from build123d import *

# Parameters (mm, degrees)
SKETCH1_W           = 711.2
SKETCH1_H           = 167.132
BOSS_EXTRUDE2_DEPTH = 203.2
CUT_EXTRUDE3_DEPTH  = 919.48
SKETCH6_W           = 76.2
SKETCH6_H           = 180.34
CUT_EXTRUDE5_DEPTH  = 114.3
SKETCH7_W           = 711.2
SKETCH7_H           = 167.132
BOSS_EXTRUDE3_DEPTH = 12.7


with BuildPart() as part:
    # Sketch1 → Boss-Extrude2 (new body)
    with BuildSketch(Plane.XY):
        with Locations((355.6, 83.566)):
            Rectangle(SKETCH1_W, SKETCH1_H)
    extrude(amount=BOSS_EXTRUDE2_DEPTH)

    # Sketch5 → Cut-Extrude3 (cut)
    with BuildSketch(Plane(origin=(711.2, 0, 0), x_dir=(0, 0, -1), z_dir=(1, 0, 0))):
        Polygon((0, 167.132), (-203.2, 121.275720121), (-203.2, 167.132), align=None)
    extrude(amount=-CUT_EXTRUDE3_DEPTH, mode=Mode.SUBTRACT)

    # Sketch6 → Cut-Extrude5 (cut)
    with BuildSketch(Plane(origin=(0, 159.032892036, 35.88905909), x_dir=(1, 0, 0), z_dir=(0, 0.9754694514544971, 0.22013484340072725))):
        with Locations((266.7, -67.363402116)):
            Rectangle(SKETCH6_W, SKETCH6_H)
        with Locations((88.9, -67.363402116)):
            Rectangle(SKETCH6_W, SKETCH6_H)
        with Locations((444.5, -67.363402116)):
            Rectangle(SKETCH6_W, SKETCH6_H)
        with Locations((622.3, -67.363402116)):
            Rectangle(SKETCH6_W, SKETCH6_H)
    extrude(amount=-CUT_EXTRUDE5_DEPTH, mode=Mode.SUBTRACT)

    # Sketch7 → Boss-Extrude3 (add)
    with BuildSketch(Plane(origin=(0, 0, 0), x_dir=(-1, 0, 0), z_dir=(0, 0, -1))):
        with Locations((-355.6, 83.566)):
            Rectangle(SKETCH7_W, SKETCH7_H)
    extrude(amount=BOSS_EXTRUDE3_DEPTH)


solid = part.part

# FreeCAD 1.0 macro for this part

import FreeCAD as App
import Part
import Sketcher
Q = App.Units.Quantity


def add_polygon(sketch, points):
    """Adds a closed chain of lines whose ends are joined by coincident constraints."""
    first, n = sketch.GeometryCount, len(points)
    for a, b in zip(points, points[1:] + points[:1]):
        sketch.addGeometry(Part.LineSegment(App.Vector(*a, 0), App.Vector(*b, 0)), False)
    for i in range(n):
        sketch.addConstraint(Sketcher.Constraint("Coincident", first + i, 2, first + (i + 1) % n, 1))

doc = App.newDocument("Part")
body = doc.addObject("PartDesign::Body", "Body")

# Sketch on XY plane
sketch1 = body.newObject("Sketcher::SketchObject", "Sketch")
sketch1.AttachmentSupport = (doc.getObject("XY_Plane"), [""])
sketch1.MapMode = "FlatFace"
add_polygon(sketch1, [(0, 167.132), (0, 0), (711.2, 0), (711.2, 167.132)])  # lines 0-3
sketch1.addConstraint([
    Sketcher.Constraint("Vertical", 0),
    Sketcher.Constraint("Horizontal", 1),
    Sketcher.Constraint("Vertical", 2),
    Sketcher.Constraint("Horizontal", 3),
    Sketcher.Constraint("Coincident", 0, 2, -1, 1),
    Sketcher.Constraint("DistanceX", 1, 1, 1, 2, Q("28 in")),
    Sketcher.Constraint("DistanceY", 0, 2, 0, 1, Q("6.58 in")),
])
pad1 = body.newObject("PartDesign::Pad", "Pad")
pad1.Profile = sketch1
pad1.Length = Q("8 in")

# Sketch on YZ plane
sketch2 = body.newObject("Sketcher::SketchObject", "Sketch001")
sketch2.AttachmentSupport = (doc.getObject("YZ_Plane"), [""])
sketch2.MapMode = "FlatFace"
sketch2.AttachmentOffset = App.Placement(App.Vector(0, 0, 28 * 25.4), App.Rotation())
add_polygon(sketch2, [(121.27572, 203.2), (167.132, 0), (167.132, 203.2)])  # lines 0-2
sketch2.addConstraint([
    Sketcher.Constraint("Vertical", 1),
    Sketcher.Constraint("Horizontal", 2),
    Sketcher.Constraint("PointOnObject", 0, 2, -1),
    Sketcher.Constraint("DistanceY", 1, 1, 1, 2, Q("8 in")),
    Sketcher.Constraint("DistanceX", -1, 1, 0, 2, Q("6.58 in")),
    Sketcher.Constraint("DistanceX", 2, 2, 2, 1, 45.85628),
])
pocket1 = body.newObject("PartDesign::Pocket", "Pocket")
pocket1.Profile = sketch2
pocket1.Length = Q("36.2 in")

# Sketch on an angled plane
sketch3 = body.newObject("Sketcher::SketchObject", "Sketch002")
sketch3.Placement = App.Placement(App.Vector(0, 159.032892, 35.889059), App.Rotation(App.Vector(1, 0, 0), App.Vector(0, 0.220134843, -0.975469451), App.Vector(0, 0.975469451, 0.220134843), "ZXY"))
add_polygon(sketch3, [(228.6, 22.806598), (228.6, -157.533402), (304.8, -157.533402), (304.8, 22.806598)])  # lines 0-3
add_polygon(sketch3, [(50.8, 22.806598), (50.8, -157.533402), (127, -157.533402), (127, 22.806598)])  # lines 4-7
add_polygon(sketch3, [(406.4, 22.806598), (406.4, -157.533402), (482.6, -157.533402), (482.6, 22.806598)])  # lines 8-11
add_polygon(sketch3, [(584.2, 22.806598), (584.2, -157.533402), (660.4, -157.533402), (660.4, 22.806598)])  # lines 12-15
sketch3.addConstraint([
    Sketcher.Constraint("Vertical", 0),
    Sketcher.Constraint("Horizontal", 1),
    Sketcher.Constraint("Vertical", 2),
    Sketcher.Constraint("Horizontal", 3),
    Sketcher.Constraint("Vertical", 4),
    Sketcher.Constraint("Horizontal", 5),
    Sketcher.Constraint("Vertical", 6),
    Sketcher.Constraint("Horizontal", 7),
    Sketcher.Constraint("Vertical", 8),
    Sketcher.Constraint("Horizontal", 9),
    Sketcher.Constraint("Vertical", 10),
    Sketcher.Constraint("Horizontal", 11),
    Sketcher.Constraint("Vertical", 12),
    Sketcher.Constraint("Horizontal", 13),
    Sketcher.Constraint("Vertical", 14),
    Sketcher.Constraint("Horizontal", 15),
    Sketcher.Constraint("Horizontal", 1, 2, 4, 2),
    Sketcher.Constraint("Horizontal", 3, 2, 6, 2),
    Sketcher.Constraint("Horizontal", 5, 2, 8, 2),
    Sketcher.Constraint("Horizontal", 7, 2, 10, 2),
    Sketcher.Constraint("Horizontal", 9, 2, 12, 2),
    Sketcher.Constraint("Horizontal", 11, 2, 14, 2),
    Sketcher.Constraint("Equal", 3, 5),
    Sketcher.Constraint("Equal", 7, 9),
    Sketcher.Constraint("Equal", 11, 13),
    Sketcher.Constraint("DistanceX", 1, 1, 1, 2, Q("3 in")),
    Sketcher.Constraint("DistanceY", 0, 2, 0, 1, Q("7.1 in")),
    Sketcher.Constraint("DistanceX", -1, 1, 0, 2, Q("9 in")),
    Sketcher.Constraint("DistanceX", -1, 1, 4, 2, Q("2 in")),
    Sketcher.Constraint("DistanceX", -1, 1, 8, 2, Q("16 in")),
    Sketcher.Constraint("DistanceX", -1, 1, 12, 2, Q("23 in")),
    Sketcher.Constraint("DistanceY", 0, 2, -1, 1, 157.533402),
])
pocket2 = body.newObject("PartDesign::Pocket", "Pocket001")
pocket2.Profile = sketch3
pocket2.Length = Q("4.5 in")

# Sketch on XY plane
sketch4 = body.newObject("Sketcher::SketchObject", "Sketch003")
sketch4.AttachmentSupport = (doc.getObject("XY_Plane"), [""])
sketch4.MapMode = "FlatFace"
add_polygon(sketch4, [(711.2, 167.132), (711.2, 0), (0, 0), (0, 167.132)])  # lines 0-3
sketch4.addConstraint([
    Sketcher.Constraint("Vertical", 0),
    Sketcher.Constraint("Horizontal", 1),
    Sketcher.Constraint("Vertical", 2),
    Sketcher.Constraint("Horizontal", 3),
    Sketcher.Constraint("Coincident", 1, 2, -1, 1),
    Sketcher.Constraint("DistanceX", 1, 2, 1, 1, Q("28 in")),
    Sketcher.Constraint("DistanceY", 0, 2, 0, 1, Q("6.58 in")),
])
pad2 = body.newObject("PartDesign::Pad", "Pad001")
pad2.Profile = sketch4
pad2.Length = Q("0.5 in")
pad2.Reversed = True

doc.recompute()
